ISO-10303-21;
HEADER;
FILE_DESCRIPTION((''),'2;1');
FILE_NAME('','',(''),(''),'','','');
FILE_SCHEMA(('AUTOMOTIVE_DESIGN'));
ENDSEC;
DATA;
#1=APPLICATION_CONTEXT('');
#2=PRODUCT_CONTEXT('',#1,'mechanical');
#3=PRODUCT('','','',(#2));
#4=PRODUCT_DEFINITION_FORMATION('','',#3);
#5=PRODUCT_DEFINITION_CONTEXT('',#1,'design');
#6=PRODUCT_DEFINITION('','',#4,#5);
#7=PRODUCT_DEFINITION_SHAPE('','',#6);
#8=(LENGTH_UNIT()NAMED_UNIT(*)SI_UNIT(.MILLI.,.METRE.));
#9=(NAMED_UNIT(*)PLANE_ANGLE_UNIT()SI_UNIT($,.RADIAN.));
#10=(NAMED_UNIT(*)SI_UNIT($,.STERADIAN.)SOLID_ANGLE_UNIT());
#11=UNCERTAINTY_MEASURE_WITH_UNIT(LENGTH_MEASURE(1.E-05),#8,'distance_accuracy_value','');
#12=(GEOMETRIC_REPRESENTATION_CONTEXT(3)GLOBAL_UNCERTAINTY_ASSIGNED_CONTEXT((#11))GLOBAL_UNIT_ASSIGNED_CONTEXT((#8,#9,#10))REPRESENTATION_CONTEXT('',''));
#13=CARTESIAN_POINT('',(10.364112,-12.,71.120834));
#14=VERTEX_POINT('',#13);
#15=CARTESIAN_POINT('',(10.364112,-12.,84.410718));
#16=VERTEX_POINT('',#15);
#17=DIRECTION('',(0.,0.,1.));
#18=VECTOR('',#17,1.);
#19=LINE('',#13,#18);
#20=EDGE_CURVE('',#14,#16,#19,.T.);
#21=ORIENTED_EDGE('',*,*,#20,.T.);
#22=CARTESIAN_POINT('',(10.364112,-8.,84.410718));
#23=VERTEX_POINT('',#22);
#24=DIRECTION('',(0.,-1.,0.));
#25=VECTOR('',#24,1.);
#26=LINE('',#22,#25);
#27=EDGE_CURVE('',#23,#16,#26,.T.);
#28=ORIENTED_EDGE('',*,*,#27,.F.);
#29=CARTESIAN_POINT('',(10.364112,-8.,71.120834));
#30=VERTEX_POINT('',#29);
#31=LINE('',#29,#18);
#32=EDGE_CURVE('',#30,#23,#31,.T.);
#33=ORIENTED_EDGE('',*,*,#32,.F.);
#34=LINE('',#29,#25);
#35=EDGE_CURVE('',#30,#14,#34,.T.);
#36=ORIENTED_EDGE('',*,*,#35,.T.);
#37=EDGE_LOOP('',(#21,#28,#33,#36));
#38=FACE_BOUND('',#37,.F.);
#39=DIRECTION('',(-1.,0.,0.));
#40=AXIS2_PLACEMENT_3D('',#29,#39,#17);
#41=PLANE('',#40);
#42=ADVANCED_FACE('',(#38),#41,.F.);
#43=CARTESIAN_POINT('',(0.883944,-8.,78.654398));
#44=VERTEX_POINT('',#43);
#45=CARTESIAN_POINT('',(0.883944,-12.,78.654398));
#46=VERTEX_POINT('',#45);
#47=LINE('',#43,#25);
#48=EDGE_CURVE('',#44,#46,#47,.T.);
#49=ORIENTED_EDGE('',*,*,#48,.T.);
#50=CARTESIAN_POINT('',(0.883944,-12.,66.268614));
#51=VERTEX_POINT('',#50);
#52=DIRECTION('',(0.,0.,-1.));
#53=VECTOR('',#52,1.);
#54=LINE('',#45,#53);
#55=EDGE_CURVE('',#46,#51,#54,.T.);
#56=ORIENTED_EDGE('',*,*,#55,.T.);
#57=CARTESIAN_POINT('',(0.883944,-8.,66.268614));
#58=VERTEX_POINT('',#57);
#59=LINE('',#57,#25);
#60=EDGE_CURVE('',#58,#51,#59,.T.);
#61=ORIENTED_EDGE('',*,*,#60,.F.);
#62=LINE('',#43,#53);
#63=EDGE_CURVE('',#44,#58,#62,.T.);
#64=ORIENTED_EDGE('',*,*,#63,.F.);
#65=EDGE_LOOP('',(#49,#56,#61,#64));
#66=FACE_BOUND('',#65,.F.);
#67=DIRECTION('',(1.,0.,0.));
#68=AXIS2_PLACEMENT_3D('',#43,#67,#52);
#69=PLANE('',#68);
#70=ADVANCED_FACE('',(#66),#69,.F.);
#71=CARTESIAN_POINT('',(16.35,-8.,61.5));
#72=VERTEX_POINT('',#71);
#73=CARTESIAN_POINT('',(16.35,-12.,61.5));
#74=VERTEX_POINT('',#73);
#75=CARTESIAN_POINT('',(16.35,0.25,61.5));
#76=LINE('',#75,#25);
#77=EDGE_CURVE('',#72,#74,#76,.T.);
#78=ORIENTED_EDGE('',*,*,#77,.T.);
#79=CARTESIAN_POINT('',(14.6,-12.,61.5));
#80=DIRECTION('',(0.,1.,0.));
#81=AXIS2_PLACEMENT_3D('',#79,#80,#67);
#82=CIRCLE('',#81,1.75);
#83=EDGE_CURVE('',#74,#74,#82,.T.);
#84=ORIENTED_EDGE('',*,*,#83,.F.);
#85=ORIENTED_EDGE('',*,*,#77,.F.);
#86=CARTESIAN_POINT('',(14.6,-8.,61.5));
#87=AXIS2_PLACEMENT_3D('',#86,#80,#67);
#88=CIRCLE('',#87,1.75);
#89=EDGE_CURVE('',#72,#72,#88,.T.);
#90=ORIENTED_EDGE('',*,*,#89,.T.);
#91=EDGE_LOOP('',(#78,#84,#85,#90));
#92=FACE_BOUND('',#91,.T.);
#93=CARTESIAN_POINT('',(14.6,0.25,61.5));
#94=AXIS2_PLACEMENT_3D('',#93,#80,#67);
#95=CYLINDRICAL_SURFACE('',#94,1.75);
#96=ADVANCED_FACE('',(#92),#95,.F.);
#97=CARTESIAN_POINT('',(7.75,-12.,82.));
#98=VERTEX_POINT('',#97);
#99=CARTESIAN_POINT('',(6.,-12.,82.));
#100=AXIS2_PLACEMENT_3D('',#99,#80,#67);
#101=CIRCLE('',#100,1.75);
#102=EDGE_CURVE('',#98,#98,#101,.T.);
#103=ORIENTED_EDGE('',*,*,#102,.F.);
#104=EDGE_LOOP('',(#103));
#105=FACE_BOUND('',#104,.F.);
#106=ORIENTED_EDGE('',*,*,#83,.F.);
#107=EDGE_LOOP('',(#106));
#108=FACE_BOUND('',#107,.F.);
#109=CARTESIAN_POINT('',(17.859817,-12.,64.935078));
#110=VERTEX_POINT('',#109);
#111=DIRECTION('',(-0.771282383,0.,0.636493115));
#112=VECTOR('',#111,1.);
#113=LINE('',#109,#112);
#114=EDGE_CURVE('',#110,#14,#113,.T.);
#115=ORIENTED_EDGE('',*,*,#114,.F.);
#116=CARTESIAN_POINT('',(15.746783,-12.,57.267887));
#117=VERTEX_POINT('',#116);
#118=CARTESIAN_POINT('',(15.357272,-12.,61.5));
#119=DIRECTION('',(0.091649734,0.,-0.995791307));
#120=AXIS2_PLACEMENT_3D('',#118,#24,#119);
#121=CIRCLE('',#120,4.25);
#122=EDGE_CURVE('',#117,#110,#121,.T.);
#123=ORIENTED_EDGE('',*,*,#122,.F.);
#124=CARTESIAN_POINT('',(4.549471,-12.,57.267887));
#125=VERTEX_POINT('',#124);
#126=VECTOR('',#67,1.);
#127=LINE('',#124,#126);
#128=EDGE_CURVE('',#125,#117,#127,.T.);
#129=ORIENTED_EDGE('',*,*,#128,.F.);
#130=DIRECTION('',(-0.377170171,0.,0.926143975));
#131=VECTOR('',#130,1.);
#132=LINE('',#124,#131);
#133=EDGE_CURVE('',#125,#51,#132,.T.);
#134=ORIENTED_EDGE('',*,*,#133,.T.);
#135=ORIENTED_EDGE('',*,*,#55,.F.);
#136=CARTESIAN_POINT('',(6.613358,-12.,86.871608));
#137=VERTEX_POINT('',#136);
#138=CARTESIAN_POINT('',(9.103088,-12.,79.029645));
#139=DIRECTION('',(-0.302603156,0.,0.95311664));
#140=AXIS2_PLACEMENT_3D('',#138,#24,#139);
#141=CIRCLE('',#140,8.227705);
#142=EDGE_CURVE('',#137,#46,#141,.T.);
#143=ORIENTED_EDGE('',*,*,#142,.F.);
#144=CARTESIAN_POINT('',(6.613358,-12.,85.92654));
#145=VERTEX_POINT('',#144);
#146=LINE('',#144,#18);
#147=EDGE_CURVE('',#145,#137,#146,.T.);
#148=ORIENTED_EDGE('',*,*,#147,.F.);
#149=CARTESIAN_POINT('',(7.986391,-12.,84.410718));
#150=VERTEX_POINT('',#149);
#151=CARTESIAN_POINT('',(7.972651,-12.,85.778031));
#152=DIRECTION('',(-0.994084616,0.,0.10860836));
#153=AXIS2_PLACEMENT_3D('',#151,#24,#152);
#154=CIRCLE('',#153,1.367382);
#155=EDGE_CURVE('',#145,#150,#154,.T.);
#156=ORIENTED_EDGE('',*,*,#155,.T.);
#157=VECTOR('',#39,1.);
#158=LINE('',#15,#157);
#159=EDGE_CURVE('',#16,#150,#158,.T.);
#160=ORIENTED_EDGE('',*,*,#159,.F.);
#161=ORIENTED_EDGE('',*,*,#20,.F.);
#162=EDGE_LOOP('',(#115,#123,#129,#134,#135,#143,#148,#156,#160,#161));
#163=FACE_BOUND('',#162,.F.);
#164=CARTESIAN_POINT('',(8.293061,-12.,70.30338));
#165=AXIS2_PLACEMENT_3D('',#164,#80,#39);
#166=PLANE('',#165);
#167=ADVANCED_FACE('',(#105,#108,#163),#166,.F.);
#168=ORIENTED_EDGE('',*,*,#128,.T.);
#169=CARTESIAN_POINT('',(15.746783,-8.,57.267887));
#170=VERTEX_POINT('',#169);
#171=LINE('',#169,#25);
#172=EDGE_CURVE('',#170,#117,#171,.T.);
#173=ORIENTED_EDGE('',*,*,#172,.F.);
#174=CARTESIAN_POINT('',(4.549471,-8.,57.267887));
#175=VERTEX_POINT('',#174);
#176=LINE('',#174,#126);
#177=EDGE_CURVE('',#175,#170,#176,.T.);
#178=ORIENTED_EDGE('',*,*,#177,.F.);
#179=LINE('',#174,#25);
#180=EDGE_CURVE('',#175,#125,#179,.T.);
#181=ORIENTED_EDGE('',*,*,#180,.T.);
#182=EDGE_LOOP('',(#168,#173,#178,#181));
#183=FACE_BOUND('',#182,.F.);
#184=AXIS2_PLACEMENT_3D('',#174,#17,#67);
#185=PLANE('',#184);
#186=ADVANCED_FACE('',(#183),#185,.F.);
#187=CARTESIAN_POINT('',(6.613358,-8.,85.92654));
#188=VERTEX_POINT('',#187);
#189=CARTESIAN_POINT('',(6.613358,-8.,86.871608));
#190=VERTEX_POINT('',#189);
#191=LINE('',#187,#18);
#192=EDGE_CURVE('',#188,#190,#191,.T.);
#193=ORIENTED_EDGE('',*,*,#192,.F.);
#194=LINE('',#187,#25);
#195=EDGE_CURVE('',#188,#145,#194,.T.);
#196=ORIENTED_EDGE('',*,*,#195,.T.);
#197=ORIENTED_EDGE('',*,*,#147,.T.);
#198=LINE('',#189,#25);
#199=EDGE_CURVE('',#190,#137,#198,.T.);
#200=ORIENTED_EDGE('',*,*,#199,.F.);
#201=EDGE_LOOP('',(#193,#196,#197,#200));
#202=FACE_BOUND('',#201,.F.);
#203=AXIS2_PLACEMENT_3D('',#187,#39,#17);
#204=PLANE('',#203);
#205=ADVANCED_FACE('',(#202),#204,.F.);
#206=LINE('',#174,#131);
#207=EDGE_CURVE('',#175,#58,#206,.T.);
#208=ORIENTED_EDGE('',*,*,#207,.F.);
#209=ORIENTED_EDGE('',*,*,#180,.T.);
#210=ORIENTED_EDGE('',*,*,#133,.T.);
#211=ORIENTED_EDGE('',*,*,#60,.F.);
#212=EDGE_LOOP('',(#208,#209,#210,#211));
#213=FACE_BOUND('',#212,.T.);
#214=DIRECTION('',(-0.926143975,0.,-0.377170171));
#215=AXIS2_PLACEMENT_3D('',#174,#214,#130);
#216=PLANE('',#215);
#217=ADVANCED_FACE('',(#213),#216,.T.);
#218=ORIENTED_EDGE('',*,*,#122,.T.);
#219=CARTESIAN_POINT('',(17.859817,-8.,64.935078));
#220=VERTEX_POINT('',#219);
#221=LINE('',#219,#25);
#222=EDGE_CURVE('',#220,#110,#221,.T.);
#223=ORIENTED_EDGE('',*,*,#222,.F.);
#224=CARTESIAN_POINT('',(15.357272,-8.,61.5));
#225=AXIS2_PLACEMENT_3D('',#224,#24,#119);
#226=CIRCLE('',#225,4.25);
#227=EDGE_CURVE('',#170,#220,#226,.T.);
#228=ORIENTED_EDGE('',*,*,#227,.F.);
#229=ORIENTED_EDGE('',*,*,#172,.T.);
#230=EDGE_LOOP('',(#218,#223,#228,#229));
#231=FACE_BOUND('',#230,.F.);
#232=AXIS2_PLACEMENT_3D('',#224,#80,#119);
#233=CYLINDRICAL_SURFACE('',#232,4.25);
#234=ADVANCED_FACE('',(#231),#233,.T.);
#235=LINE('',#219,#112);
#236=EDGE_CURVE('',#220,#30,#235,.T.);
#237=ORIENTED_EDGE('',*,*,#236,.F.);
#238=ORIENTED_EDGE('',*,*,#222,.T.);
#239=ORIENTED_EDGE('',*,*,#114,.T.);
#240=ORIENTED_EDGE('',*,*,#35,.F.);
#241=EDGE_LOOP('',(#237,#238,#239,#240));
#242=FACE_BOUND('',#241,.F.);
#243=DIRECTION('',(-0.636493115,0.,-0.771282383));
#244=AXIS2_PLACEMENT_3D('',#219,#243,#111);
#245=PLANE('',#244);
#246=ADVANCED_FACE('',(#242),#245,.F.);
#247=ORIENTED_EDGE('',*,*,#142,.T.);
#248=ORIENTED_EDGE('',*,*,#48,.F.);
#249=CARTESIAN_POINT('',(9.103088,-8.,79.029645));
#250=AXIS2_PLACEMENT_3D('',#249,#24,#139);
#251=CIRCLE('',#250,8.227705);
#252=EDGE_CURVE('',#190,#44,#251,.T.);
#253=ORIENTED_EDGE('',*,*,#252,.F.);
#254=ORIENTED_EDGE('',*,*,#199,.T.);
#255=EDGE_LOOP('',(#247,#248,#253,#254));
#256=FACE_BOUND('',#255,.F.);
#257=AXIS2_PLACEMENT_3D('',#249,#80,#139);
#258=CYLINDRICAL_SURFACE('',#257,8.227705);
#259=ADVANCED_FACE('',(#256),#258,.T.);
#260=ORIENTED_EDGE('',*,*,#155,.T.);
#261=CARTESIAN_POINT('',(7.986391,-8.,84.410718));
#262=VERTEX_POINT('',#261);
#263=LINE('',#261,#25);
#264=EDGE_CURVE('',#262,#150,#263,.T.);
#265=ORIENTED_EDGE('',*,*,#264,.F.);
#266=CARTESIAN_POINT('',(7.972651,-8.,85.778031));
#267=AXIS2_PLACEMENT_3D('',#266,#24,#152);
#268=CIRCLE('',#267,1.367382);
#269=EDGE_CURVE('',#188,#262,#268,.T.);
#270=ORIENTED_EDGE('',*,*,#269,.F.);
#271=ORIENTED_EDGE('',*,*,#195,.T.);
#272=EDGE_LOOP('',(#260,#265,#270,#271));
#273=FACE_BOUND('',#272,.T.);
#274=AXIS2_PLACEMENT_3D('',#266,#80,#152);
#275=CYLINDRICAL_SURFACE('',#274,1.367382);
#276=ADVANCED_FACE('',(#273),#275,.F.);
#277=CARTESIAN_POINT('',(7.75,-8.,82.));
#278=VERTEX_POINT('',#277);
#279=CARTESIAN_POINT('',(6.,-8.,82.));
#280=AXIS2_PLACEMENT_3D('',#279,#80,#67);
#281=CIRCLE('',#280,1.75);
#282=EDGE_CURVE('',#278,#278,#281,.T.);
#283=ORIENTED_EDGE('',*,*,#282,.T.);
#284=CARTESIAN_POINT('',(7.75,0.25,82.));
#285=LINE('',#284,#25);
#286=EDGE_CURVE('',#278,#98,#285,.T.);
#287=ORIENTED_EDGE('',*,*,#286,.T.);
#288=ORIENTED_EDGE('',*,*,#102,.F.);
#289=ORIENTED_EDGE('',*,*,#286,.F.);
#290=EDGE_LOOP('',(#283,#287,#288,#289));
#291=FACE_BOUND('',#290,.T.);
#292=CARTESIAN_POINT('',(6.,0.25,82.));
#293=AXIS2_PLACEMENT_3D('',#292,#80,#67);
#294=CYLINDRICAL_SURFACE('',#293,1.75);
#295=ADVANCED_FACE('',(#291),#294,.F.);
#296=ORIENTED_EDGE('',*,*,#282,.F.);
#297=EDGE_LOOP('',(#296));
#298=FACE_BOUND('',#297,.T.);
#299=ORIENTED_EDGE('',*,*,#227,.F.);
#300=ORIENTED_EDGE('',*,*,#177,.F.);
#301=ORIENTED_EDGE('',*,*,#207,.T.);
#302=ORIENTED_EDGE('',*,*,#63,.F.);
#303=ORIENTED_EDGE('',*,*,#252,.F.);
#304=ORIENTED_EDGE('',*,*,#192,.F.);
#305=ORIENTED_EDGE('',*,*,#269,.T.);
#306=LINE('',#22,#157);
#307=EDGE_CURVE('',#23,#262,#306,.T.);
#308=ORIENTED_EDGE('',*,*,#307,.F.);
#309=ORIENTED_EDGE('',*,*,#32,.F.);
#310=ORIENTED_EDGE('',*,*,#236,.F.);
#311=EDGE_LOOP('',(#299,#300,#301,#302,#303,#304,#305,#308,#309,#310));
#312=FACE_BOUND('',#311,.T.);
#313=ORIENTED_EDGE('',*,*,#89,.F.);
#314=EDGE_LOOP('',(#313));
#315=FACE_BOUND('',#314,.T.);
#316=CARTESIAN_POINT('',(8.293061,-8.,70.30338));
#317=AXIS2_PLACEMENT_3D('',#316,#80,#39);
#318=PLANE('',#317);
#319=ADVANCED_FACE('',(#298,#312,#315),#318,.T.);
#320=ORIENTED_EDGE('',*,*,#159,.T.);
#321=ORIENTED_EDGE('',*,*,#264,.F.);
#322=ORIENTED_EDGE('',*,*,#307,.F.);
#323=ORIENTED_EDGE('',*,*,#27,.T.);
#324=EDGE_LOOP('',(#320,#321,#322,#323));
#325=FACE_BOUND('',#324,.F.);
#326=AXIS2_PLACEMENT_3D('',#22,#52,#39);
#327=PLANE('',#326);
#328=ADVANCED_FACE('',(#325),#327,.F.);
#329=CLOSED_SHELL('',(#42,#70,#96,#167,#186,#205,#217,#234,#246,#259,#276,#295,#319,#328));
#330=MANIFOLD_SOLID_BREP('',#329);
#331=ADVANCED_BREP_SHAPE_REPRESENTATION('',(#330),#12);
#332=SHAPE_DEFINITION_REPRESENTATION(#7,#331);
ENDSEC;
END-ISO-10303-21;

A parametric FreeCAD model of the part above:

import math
import FreeCAD as App
import Part
import Sketcher

doc = App.newDocument("Part")
params = doc.addObject("Spreadsheet::Sheet", "Params")
for row, (alias, value) in enumerate([
    ("sketch1_diameter", "3.5 mm"),
    ("pad1_length", "15 mm"),
    ("sketch2_diameter", "3.5 mm"),
    ("pad2_length", "15 mm"),
    ("sketch3_radius", "4.25 mm"),
    ("pad3_length", "4 mm"),
], start=1):
    params.set(f"A{row}", alias)
    params.set(f"B{row}", "=" + value)
    params.setAlias(f"B{row}", alias)

body = doc.addObject("PartDesign::Body", "Body")

# Sketch on XZ plane
sketch1 = body.newObject("Sketcher::SketchObject", "Sketch")
sketch1.AttachmentSupport = (doc.getObject("XZ_Plane"), [""])
sketch1.MapMode = "FlatFace"
sketch1.AttachmentOffset = App.Placement(App.Vector(0, 0, -0.25), App.Rotation())
sketch1.addGeometry(Part.Circle(App.Vector(14.6, 61.5, 0), App.Vector(0, 0, 1), 1.75), False)
sketch1.addConstraint([
    Sketcher.Constraint("Diameter", 0, 3.5),
    Sketcher.Constraint("DistanceX", -1, 1, 0, 3, 14.6),
    Sketcher.Constraint("DistanceY", -1, 1, 0, 3, 61.5),
])
sketch1.setExpression("Constraints[0]", "Params.sketch1_diameter")
pad1 = body.newObject("PartDesign::Pad", "Pad")
pad1.Profile = sketch1
pad1.setExpression("Length", "Params.pad1_length")
body2 = doc.addObject("PartDesign::Body", "Body001")
body2.AllowCompound = True

# Sketch on XZ plane
sketch2 = body2.newObject("Sketcher::SketchObject", "Sketch001")
sketch2.AttachmentSupport = (doc.getObject("XZ_Plane001"), [""])
sketch2.MapMode = "FlatFace"
sketch2.AttachmentOffset = App.Placement(App.Vector(0, 0, -0.25), App.Rotation())
sketch2.addGeometry(Part.Circle(App.Vector(6, 82, 0), App.Vector(0, 0, 1), 1.75), False)
sketch2.addConstraint([
    Sketcher.Constraint("Diameter", 0, 3.5),
    Sketcher.Constraint("DistanceX", -1, 1, 0, 3, 6.0),
    Sketcher.Constraint("DistanceY", -1, 1, 0, 3, 82.0),
])
sketch2.setExpression("Constraints[0]", "Params.sketch2_diameter")
pad2 = body2.newObject("PartDesign::Pad", "Pad001")
pad2.Profile = sketch2
pad2.setExpression("Length", "Params.pad2_length")
doc.recompute()

boolean = body2.newObject("PartDesign::Boolean", "Boolean")
boolean.Type = "Fuse"
boolean.addObjects([body])
body3 = doc.addObject("PartDesign::Body", "Body002")

# Sketch on XZ plane
sketch3 = body3.newObject("Sketcher::SketchObject", "Sketch002")
sketch3.AttachmentSupport = (doc.getObject("XZ_Plane002"), [""])
sketch3.MapMode = "FlatFace"
sketch3.addGeometry([
    Part.LineSegment(App.Vector(0.883944, 66.268614, 0), App.Vector(4.549471, 57.267887, 0)),  # 0
    Part.LineSegment(App.Vector(4.549471, 57.267887, 0), App.Vector(15.746783, 57.267887, 0)),  # 1
    Part.ArcOfCircle(Part.Circle(App.Vector(15.357272, 61.5, 0), App.Vector(0, 0, 1), 4.25), math.radians(-84.741478), math.radians(53.925673)),  # 2
    Part.LineSegment(App.Vector(17.859817, 64.935078, 0), App.Vector(10.364112, 71.120834, 0)),  # 3
    Part.LineSegment(App.Vector(10.364112, 71.120834, 0), App.Vector(10.364112, 84.410718, 0)),  # 4
    Part.LineSegment(App.Vector(10.364112, 84.410718, 0), App.Vector(7.986391, 84.410718, 0)),  # 5
    Part.ArcOfCircle(Part.Circle(App.Vector(7.972651, 85.778031, 0), App.Vector(0, 0, 1), 1.367382), math.radians(173.7649), math.radians(270.575727)),  # 6
    Part.LineSegment(App.Vector(6.613358, 85.92654, 0), App.Vector(6.613358, 86.871608, 0)),  # 7
    Part.ArcOfCircle(Part.Circle(App.Vector(9.103088, 79.029645, 0), App.Vector(0, 0, 1), 8.227705), math.radians(107.614022), math.radians(182.61404)),  # 8
    Part.LineSegment(App.Vector(0.883944, 78.654398, 0), App.Vector(0.883944, 66.268614, 0)),  # 9
], False)
sketch3.addConstraint([
    Sketcher.Constraint("Coincident", 0, 2, 1, 1),
    Sketcher.Constraint("Coincident", 1, 2, 2, 1),
    Sketcher.Constraint("Coincident", 2, 2, 3, 1),
    Sketcher.Constraint("Coincident", 3, 2, 4, 1),
    Sketcher.Constraint("Coincident", 4, 2, 5, 1),
    Sketcher.Constraint("Coincident", 5, 2, 6, 2),
    Sketcher.Constraint("Coincident", 6, 1, 7, 1),
    Sketcher.Constraint("Coincident", 7, 2, 8, 1),
    Sketcher.Constraint("Coincident", 8, 2, 9, 1),
    Sketcher.Constraint("Coincident", 9, 2, 0, 1),
    Sketcher.Constraint("Horizontal", 1),
    Sketcher.Constraint("Vertical", 4),
    Sketcher.Constraint("Horizontal", 5),
    Sketcher.Constraint("Vertical", 7),
    Sketcher.Constraint("Vertical", 9),
    Sketcher.Constraint("Equal", 0, 3),
    Sketcher.Constraint("Radius", 2, 4.25),
    Sketcher.Constraint("DistanceY", -1, 1, 2, 3, 61.5),
    Sketcher.Constraint("Radius", 6, 1.367382),
    Sketcher.Constraint("Radius", 8, 8.227705),
    Sketcher.Constraint("DistanceX", 5, 2, 5, 1, 2.377721),
    Sketcher.Constraint("DistanceY", -1, 1, 8, 2, 78.654398),
    Sketcher.Constraint("DistanceX", 0, 2, 2, 3, 10.807801),
    Sketcher.Constraint("DistanceX", 1, 1, 1, 2, 11.197312),
    Sketcher.Constraint("DistanceY", 4, 1, 4, 2, 13.289884),
    Sketcher.Constraint("DistanceY", 7, 1, 7, 2, 0.945068),
    Sketcher.Constraint("DistanceY", 9, 2, 9, 1, 12.385784),
    Sketcher.Constraint("DistanceX", -1, 1, 2, 3, 15.357272),
    Sketcher.Constraint("DistanceX", -1, 1, 6, 3, 7.972651),
    Sketcher.Constraint("DistanceY", -1, 1, 6, 3, 85.778031),
    Sketcher.Constraint("DistanceY", -1, 1, 2, 2, 64.935078),
    Sketcher.Constraint("DistanceY", -1, 1, 4, 2, 84.410718),
    Sketcher.Constraint("DistanceY", -1, 1, 6, 1, 85.92654),
])
sketch3.setExpression("Constraints[16]", "Params.sketch3_radius")
pad3 = body3.newObject("PartDesign::Pad", "Pad002")
pad3.Profile = sketch3
pad3.setExpression("Length", "Params.pad3_length")
body4 = doc.addObject("PartDesign::Body", "Body003")
doc.recompute()

body3.Placement = App.Placement(App.Vector(0, -8, 0), App.Rotation(App.Vector(0, 0, 1), 0))
boolean2 = body4.newObject("PartDesign::Boolean", "Boolean001")
boolean2.Type = "Fuse"
boolean2.addObjects([body3])
doc.recompute()

boolean3 = body4.newObject("PartDesign::Boolean", "Boolean002")
boolean3.Type = "Cut"
boolean3.addObjects([body2])

doc.recompute()
